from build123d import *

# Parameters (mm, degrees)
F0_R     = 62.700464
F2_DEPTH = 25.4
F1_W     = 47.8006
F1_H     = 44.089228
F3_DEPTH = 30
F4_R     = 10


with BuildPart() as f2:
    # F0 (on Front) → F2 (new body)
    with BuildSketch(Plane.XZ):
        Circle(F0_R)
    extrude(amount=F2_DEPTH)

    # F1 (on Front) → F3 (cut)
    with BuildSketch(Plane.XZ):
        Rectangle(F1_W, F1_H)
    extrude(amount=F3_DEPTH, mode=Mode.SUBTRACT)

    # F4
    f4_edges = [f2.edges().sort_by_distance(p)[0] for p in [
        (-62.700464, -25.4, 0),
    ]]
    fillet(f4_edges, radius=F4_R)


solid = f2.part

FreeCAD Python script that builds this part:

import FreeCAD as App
import Part
import Sketcher

V = App.Vector
Q = App.Units.Quantity


def edges_at(feature, points):
    """Names of the edges that pass closest to the given points."""
    edges = feature.Shape.Edges
    near = lambda p: min(range(len(edges)), key=lambda i: edges[i].distToShape(Part.Vertex(*p))[0])
    return sorted({f"Edge{near(p) + 1}" for p in points})

doc = App.newDocument("Part")
body = doc.addObject("PartDesign::Body", "Body")

sketch1 = body.newObject("Sketcher::SketchObject", "Sketch")
sketch1.AttachmentSupport = (doc.getObject("XZ_Plane"), [""])
sketch1.MapMode = "FlatFace"
sketch1.addGeometry(Part.Circle(V(0, 0, 0), V(0, 0, 1), 63), False)
sketch1.addConstraint([
    Sketcher.Constraint("Coincident", 0, 3, -1, 1),
    Sketcher.Constraint("Diameter", 0, Q("125.400928 mm")),
])
pad1 = body.newObject("PartDesign::Pad", "Pad")
pad1.Profile = sketch1
pad1.Length = 25.4

sketch2 = body.newObject("Sketcher::SketchObject", "Sketch001")
sketch2.AttachmentSupport = (doc.getObject("XZ_Plane"), [""])
sketch2.MapMode = "FlatFace"
sketch2.addGeometry([
    Part.LineSegment(V(-24, 22, 0), V(-24, -22, 0)),
    Part.LineSegment(V(-24, -22, 0), V(24, -22, 0)),
    Part.LineSegment(V(24, -22, 0), V(24, 22, 0)),
    Part.LineSegment(V(24, 22, 0), V(-24, 22, 0)),
], False)
sketch2.addConstraint([
    Sketcher.Constraint("Coincident", 0, 2, 1, 1),
    Sketcher.Constraint("Coincident", 1, 2, 2, 1),
    Sketcher.Constraint("Coincident", 2, 2, 3, 1),
    Sketcher.Constraint("Coincident", 3, 2, 0, 1),
    Sketcher.Constraint("Vertical", 0),
    Sketcher.Constraint("Horizontal", 1),
    Sketcher.Constraint("Vertical", 2),
    Sketcher.Constraint("Horizontal", 3),
    Sketcher.Constraint("Symmetric", 0, 2, 2, 2, -1, 1),
    Sketcher.Constraint("DistanceX", 1, 1, 1, 2, Q("47.8006 mm")),
    Sketcher.Constraint("DistanceY", 0, 2, 0, 1, Q("44.089228 mm")),
])
pocket1 = body.newObject("PartDesign::Pocket", "Pocket")
pocket1.Profile = sketch2
pocket1.Length = 30
pocket1.Reversed = True
doc.recompute()

fillet = body.newObject("PartDesign::Fillet", "Fillet")
fillet.Base = (pocket1, edges_at(pocket1, [(-62.7, -25.4, 0)]))
fillet.Radius = 10

doc.recompute()
